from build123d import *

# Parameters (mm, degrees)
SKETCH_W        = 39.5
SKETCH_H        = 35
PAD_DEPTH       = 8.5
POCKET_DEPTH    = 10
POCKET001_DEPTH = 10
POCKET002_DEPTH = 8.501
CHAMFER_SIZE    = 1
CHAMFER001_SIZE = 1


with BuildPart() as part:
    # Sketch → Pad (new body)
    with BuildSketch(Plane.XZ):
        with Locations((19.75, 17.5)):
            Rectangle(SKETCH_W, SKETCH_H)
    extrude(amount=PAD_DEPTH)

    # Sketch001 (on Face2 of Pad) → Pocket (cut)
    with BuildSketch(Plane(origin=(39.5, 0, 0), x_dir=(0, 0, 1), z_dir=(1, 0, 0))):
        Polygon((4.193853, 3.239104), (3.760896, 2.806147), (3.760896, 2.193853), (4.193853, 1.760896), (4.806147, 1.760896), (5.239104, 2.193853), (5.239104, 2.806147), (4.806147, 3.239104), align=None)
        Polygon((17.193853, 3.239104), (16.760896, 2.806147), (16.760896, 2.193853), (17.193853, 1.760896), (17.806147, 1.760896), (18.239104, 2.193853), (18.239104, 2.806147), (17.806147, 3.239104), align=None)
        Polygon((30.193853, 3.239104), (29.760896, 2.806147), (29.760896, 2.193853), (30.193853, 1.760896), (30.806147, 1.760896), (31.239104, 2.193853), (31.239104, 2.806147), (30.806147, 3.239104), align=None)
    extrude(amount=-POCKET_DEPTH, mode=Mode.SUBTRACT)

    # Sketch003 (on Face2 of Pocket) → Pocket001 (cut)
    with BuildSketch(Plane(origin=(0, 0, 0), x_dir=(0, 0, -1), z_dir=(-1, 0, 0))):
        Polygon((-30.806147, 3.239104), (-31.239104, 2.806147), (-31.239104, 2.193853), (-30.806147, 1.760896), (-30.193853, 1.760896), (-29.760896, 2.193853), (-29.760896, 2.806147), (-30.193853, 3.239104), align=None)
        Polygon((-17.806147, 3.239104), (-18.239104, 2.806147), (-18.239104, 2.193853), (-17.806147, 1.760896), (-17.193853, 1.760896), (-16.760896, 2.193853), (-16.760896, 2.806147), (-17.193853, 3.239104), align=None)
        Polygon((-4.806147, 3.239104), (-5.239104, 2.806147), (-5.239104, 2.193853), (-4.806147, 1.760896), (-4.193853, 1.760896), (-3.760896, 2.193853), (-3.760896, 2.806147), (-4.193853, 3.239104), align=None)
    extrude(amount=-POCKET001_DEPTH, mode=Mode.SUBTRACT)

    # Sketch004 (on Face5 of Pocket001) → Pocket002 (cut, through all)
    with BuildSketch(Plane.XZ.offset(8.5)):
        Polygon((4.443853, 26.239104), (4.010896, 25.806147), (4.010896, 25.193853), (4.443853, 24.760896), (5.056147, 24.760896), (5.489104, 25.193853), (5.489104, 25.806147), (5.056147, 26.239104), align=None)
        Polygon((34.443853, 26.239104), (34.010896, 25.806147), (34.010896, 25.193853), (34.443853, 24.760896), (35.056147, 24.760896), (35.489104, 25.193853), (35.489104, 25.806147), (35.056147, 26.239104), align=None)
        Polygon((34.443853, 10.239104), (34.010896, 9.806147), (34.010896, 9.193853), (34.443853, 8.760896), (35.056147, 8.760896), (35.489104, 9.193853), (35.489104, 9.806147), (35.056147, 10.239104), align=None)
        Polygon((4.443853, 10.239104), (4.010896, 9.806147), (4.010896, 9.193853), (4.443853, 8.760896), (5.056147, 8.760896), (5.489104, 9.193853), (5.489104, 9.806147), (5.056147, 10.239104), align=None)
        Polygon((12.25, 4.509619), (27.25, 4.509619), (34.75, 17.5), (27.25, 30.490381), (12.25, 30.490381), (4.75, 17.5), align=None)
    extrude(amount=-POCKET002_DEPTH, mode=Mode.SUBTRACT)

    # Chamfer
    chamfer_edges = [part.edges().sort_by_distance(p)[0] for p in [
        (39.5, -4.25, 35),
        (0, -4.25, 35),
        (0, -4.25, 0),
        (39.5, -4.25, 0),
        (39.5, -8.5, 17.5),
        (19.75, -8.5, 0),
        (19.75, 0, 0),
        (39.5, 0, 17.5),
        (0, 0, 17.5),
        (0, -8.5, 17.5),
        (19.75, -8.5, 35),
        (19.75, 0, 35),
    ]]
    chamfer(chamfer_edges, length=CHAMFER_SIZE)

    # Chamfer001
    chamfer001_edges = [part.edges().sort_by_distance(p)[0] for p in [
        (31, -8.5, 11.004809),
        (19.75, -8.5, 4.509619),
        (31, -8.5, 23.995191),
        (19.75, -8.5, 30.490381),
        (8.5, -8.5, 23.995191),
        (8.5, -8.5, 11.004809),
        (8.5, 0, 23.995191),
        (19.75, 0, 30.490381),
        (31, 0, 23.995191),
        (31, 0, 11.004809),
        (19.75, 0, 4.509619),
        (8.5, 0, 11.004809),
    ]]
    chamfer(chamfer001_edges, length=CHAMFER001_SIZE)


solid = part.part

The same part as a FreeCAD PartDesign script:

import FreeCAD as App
import Part
import Sketcher
from FreeCAD import Vector
Q = App.Units.Quantity


def edges_at(feature, points):
    """Names of the edges that pass closest to the given points."""
    edges = feature.Shape.Edges
    near = lambda p: min(range(len(edges)), key=lambda i: edges[i].distToShape(Part.Vertex(*p))[0])
    return sorted({f"Edge{near(p) + 1}" for p in points})

doc = App.newDocument("Part")
body = doc.addObject("PartDesign::Body", "Body")

# Sketch on XZ plane
sketch1 = doc.addObject("Sketcher::SketchObject", "Sketch")
body.addObject(sketch1)
sketch1.AttachmentSupport = (doc.XZ_Plane, [""])
sketch1.MapMode = "FlatFace"
sketch1.addGeometry([
    Part.LineSegment(Vector(0, 35, 0), Vector(0, 0, 0)),
    Part.LineSegment(Vector(0, 0, 0), Vector(40, 0, 0)),
    Part.LineSegment(Vector(40, 0, 0), Vector(40, 35, 0)),
    Part.LineSegment(Vector(40, 35, 0), Vector(0, 35, 0)),
], False)
sketch1.addConstraint([
    Sketcher.Constraint("Coincident", 0, 2, 1, 1),
    Sketcher.Constraint("Coincident", 1, 2, 2, 1),
    Sketcher.Constraint("Coincident", 2, 2, 3, 1),
    Sketcher.Constraint("Coincident", 3, 2, 0, 1),
    Sketcher.Constraint("Vertical", 0),
    Sketcher.Constraint("Horizontal", 1),
    Sketcher.Constraint("Vertical", 2),
    Sketcher.Constraint("Horizontal", 3),
    Sketcher.Constraint("Coincident", 0, 2, -1, 1),
    Sketcher.Constraint("DistanceY", 0, 2, 0, 1, 35.0),
    Sketcher.Constraint("DistanceX", 1, 1, 1, 2, 39.5),
])
pad1 = doc.addObject("PartDesign::Pad", "Pad")
body.addObject(pad1)
pad1.Profile = sketch1
pad1.Length = 8.5

# Sketch on YZ plane
sketch2 = doc.addObject("Sketcher::SketchObject", "Sketch001")
body.addObject(sketch2)
sketch2.AttachmentSupport = (doc.YZ_Plane, [""])
sketch2.MapMode = "FlatFace"
sketch2.AttachmentOffset = App.Placement(Vector(0, 0, 39.5), App.Rotation())
sketch2.addGeometry([
    Part.LineSegment(Vector(-3.2, 4.2, 0), Vector(-2.8, 3.8, 0)),  # 0
    Part.LineSegment(Vector(-2.8, 3.8, 0), Vector(-2.2, 3.8, 0)),  # 1
    Part.LineSegment(Vector(-2.2, 3.8, 0), Vector(-1.8, 4.2, 0)),  # 2
    Part.LineSegment(Vector(-1.8, 4.2, 0), Vector(-1.8, 4.8, 0)),  # 3
    Part.LineSegment(Vector(-1.8, 4.8, 0), Vector(-2.2, 5.2, 0)),  # 4
    Part.LineSegment(Vector(-2.2, 5.2, 0), Vector(-2.8, 5.2, 0)),  # 5
    Part.LineSegment(Vector(-2.8, 5.2, 0), Vector(-3.2, 4.8, 0)),  # 6
    Part.LineSegment(Vector(-3.2, 4.8, 0), Vector(-3.2, 4.2, 0)),  # 7
    Part.LineSegment(Vector(-3.2, 17.2, 0), Vector(-2.8, 16.8, 0)),  # 8
    Part.LineSegment(Vector(-2.8, 16.8, 0), Vector(-2.2, 16.8, 0)),  # 9
    Part.LineSegment(Vector(-2.2, 16.8, 0), Vector(-1.8, 17.2, 0)),  # 10
    Part.LineSegment(Vector(-1.8, 17.2, 0), Vector(-1.8, 17.8, 0)),  # 11
    Part.LineSegment(Vector(-1.8, 17.8, 0), Vector(-2.2, 18.2, 0)),  # 12
    Part.LineSegment(Vector(-2.2, 18.2, 0), Vector(-2.8, 18.2, 0)),  # 13
    Part.LineSegment(Vector(-2.8, 18.2, 0), Vector(-3.2, 17.8, 0)),  # 14
    Part.LineSegment(Vector(-3.2, 17.8, 0), Vector(-3.2, 17.2, 0)),  # 15
    Part.LineSegment(Vector(-3.2, 30.2, 0), Vector(-2.8, 29.8, 0)),  # 16
    Part.LineSegment(Vector(-2.8, 29.8, 0), Vector(-2.2, 29.8, 0)),  # 17
    Part.LineSegment(Vector(-2.2, 29.8, 0), Vector(-1.8, 30.2, 0)),  # 18
    Part.LineSegment(Vector(-1.8, 30.2, 0), Vector(-1.8, 30.8, 0)),  # 19
    Part.LineSegment(Vector(-1.8, 30.8, 0), Vector(-2.2, 31.2, 0)),  # 20
    Part.LineSegment(Vector(-2.2, 31.2, 0), Vector(-2.8, 31.2, 0)),  # 21
    Part.LineSegment(Vector(-2.8, 31.2, 0), Vector(-3.2, 30.8, 0)),  # 22
    Part.LineSegment(Vector(-3.2, 30.8, 0), Vector(-3.2, 30.2, 0)),  # 23
], False)
sketch2.addConstraint([
    Sketcher.Constraint("Coincident", 0, 2, 1, 1),
    Sketcher.Constraint("Coincident", 1, 2, 2, 1),
    Sketcher.Constraint("Coincident", 2, 2, 3, 1),
    Sketcher.Constraint("Coincident", 3, 2, 4, 1),
    Sketcher.Constraint("Coincident", 4, 2, 5, 1),
    Sketcher.Constraint("Coincident", 5, 2, 6, 1),
    Sketcher.Constraint("Coincident", 6, 2, 7, 1),
    Sketcher.Constraint("Coincident", 7, 2, 0, 1),
    Sketcher.Constraint("Coincident", 8, 2, 9, 1),
    Sketcher.Constraint("Coincident", 9, 2, 10, 1),
    Sketcher.Constraint("Coincident", 10, 2, 11, 1),
    Sketcher.Constraint("Coincident", 11, 2, 12, 1),
    Sketcher.Constraint("Coincident", 12, 2, 13, 1),
    Sketcher.Constraint("Coincident", 13, 2, 14, 1),
    Sketcher.Constraint("Coincident", 14, 2, 15, 1),
    Sketcher.Constraint("Coincident", 15, 2, 8, 1),
    Sketcher.Constraint("Coincident", 16, 2, 17, 1),
    Sketcher.Constraint("Coincident", 17, 2, 18, 1),
    Sketcher.Constraint("Coincident", 18, 2, 19, 1),
    Sketcher.Constraint("Coincident", 19, 2, 20, 1),
    Sketcher.Constraint("Coincident", 20, 2, 21, 1),
    Sketcher.Constraint("Coincident", 21, 2, 22, 1),
    Sketcher.Constraint("Coincident", 22, 2, 23, 1),
    Sketcher.Constraint("Coincident", 23, 2, 16, 1),
    Sketcher.Constraint("Horizontal", 1),
    Sketcher.Constraint("Vertical", 3),
    Sketcher.Constraint("Horizontal", 5),
    Sketcher.Constraint("Vertical", 7),
    Sketcher.Constraint("Horizontal", 9),
    Sketcher.Constraint("Vertical", 11),
    Sketcher.Constraint("Horizontal", 13),
    Sketcher.Constraint("Vertical", 15),
    Sketcher.Constraint("Horizontal", 17),
    Sketcher.Constraint("Vertical", 19),
    Sketcher.Constraint("Horizontal", 21),
    Sketcher.Constraint("Vertical", 23),
    Sketcher.Constraint("Perpendicular", 0, 2),
    Sketcher.Constraint("Perpendicular", 2, 4),
    Sketcher.Constraint("Perpendicular", 4, 6),
    Sketcher.Constraint("Perpendicular", 6, 8),
    Sketcher.Constraint("Perpendicular", 8, 10),
    Sketcher.Constraint("Perpendicular", 10, 12),
    Sketcher.Constraint("Perpendicular", 12, 14),
    Sketcher.Constraint("Perpendicular", 14, 16),
    Sketcher.Constraint("Perpendicular", 16, 18),
    Sketcher.Constraint("Perpendicular", 18, 20),
    Sketcher.Constraint("Perpendicular", 20, 22),
    Sketcher.Constraint("Horizontal", 3, 2, 6, 2),
    Sketcher.Constraint("Horizontal", 2, 2, 7, 2),
    Sketcher.Constraint("Horizontal", 11, 2, 14, 2),
    Sketcher.Constraint("Horizontal", 10, 2, 15, 2),
    Sketcher.Constraint("Horizontal", 19, 2, 22, 2),
    Sketcher.Constraint("Horizontal", 18, 2, 23, 2),
    Sketcher.Constraint("Vertical", 1, 2, 4, 2),
    Sketcher.Constraint("Vertical", 0, 2, 5, 2),
    Sketcher.Constraint("Vertical", 5, 2, 8, 2),
    Sketcher.Constraint("Vertical", 4, 2, 9, 2),
    Sketcher.Constraint("Vertical", 3, 2, 10, 2),
    Sketcher.Constraint("Vertical", 9, 2, 12, 2),
    Sketcher.Constraint("Vertical", 13, 2, 16, 2),
    Sketcher.Constraint("Vertical", 12, 2, 17, 2),
    Sketcher.Constraint("Vertical", 11, 2, 18, 2),
    Sketcher.Constraint("Vertical", 17, 2, 20, 2),
    Sketcher.Constraint("Equal", 21, 3),
    Sketcher.Constraint("Equal", 7, 11),
    Sketcher.Constraint("Equal", 15, 19),
    Sketcher.Constraint("DistanceY", 4, 2, 12, 2, 13.0),
    Sketcher.Constraint("DistanceY", 12, 2, 20, 2, 13.0),
    Sketcher.Constraint("DistanceX", 1, 1, 1, 2, 0.612294),
    Sketcher.Constraint("DistanceX", 0, 2, 2, 2, 1.045251),
    Sketcher.Constraint("DistanceX", 0, 2, -1, 1, 2.806147),
    Sketcher.Constraint("DistanceY", -1, 1, 0, 2, 3.760896),
])
pocket1 = doc.addObject("PartDesign::Pocket", "Pocket")
body.addObject(pocket1)
pocket1.Profile = sketch2
pocket1.Length = 10

# Sketch on YZ plane
sketch3 = doc.addObject("Sketcher::SketchObject", "Sketch002")
body.addObject(sketch3)
sketch3.AttachmentSupport = (doc.YZ_Plane, [""])
sketch3.MapMode = "FlatFace"
sketch3.addGeometry([
    Part.LineSegment(Vector(-3.2, 30.8, 0), Vector(-2.8, 31.2, 0)),  # 0
    Part.LineSegment(Vector(-2.8, 31.2, 0), Vector(-2.2, 31.2, 0)),  # 1
    Part.LineSegment(Vector(-2.2, 31.2, 0), Vector(-1.8, 30.8, 0)),  # 2
    Part.LineSegment(Vector(-1.8, 30.8, 0), Vector(-1.8, 30.2, 0)),  # 3
    Part.LineSegment(Vector(-1.8, 30.2, 0), Vector(-2.2, 29.8, 0)),  # 4
    Part.LineSegment(Vector(-2.2, 29.8, 0), Vector(-2.8, 29.8, 0)),  # 5
    Part.LineSegment(Vector(-2.8, 29.8, 0), Vector(-3.2, 30.2, 0)),  # 6
    Part.LineSegment(Vector(-3.2, 30.2, 0), Vector(-3.2, 30.8, 0)),  # 7
    Part.LineSegment(Vector(-3.2, 17.8, 0), Vector(-2.8, 18.2, 0)),  # 8
    Part.LineSegment(Vector(-2.8, 18.2, 0), Vector(-2.2, 18.2, 0)),  # 9
    Part.LineSegment(Vector(-2.2, 18.2, 0), Vector(-1.8, 17.8, 0)),  # 10
    Part.LineSegment(Vector(-1.8, 17.8, 0), Vector(-1.8, 17.2, 0)),  # 11
    Part.LineSegment(Vector(-1.8, 17.2, 0), Vector(-2.2, 16.8, 0)),  # 12
    Part.LineSegment(Vector(-2.2, 16.8, 0), Vector(-2.8, 16.8, 0)),  # 13
    Part.LineSegment(Vector(-2.8, 16.8, 0), Vector(-3.2, 17.2, 0)),  # 14
    Part.LineSegment(Vector(-3.2, 17.2, 0), Vector(-3.2, 17.8, 0)),  # 15
    Part.LineSegment(Vector(-3.2, 4.8, 0), Vector(-2.8, 5.2, 0)),  # 16
    Part.LineSegment(Vector(-2.8, 5.2, 0), Vector(-2.2, 5.2, 0)),  # 17
    Part.LineSegment(Vector(-2.2, 5.2, 0), Vector(-1.8, 4.8, 0)),  # 18
    Part.LineSegment(Vector(-1.8, 4.8, 0), Vector(-1.8, 4.2, 0)),  # 19
    Part.LineSegment(Vector(-1.8, 4.2, 0), Vector(-2.2, 3.8, 0)),  # 20
    Part.LineSegment(Vector(-2.2, 3.8, 0), Vector(-2.8, 3.8, 0)),  # 21
    Part.LineSegment(Vector(-2.8, 3.8, 0), Vector(-3.2, 4.2, 0)),  # 22
    Part.LineSegment(Vector(-3.2, 4.2, 0), Vector(-3.2, 4.8, 0)),  # 23
], False)
sketch3.addConstraint([
    Sketcher.Constraint("Coincident", 0, 2, 1, 1),
    Sketcher.Constraint("Coincident", 1, 2, 2, 1),
    Sketcher.Constraint("Coincident", 2, 2, 3, 1),
    Sketcher.Constraint("Coincident", 3, 2, 4, 1),
    Sketcher.Constraint("Coincident", 4, 2, 5, 1),
    Sketcher.Constraint("Coincident", 5, 2, 6, 1),
    Sketcher.Constraint("Coincident", 6, 2, 7, 1),
    Sketcher.Constraint("Coincident", 7, 2, 0, 1),
    Sketcher.Constraint("Coincident", 8, 2, 9, 1),
    Sketcher.Constraint("Coincident", 9, 2, 10, 1),
    Sketcher.Constraint("Coincident", 10, 2, 11, 1),
    Sketcher.Constraint("Coincident", 11, 2, 12, 1),
    Sketcher.Constraint("Coincident", 12, 2, 13, 1),
    Sketcher.Constraint("Coincident", 13, 2, 14, 1),
    Sketcher.Constraint("Coincident", 14, 2, 15, 1),
    Sketcher.Constraint("Coincident", 15, 2, 8, 1),
    Sketcher.Constraint("Coincident", 16, 2, 17, 1),
    Sketcher.Constraint("Coincident", 17, 2, 18, 1),
    Sketcher.Constraint("Coincident", 18, 2, 19, 1),
    Sketcher.Constraint("Coincident", 19, 2, 20, 1),
    Sketcher.Constraint("Coincident", 20, 2, 21, 1),
    Sketcher.Constraint("Coincident", 21, 2, 22, 1),
    Sketcher.Constraint("Coincident", 22, 2, 23, 1),
    Sketcher.Constraint("Coincident", 23, 2, 16, 1),
    Sketcher.Constraint("Horizontal", 1),
    Sketcher.Constraint("Vertical", 3),
    Sketcher.Constraint("Horizontal", 5),
    Sketcher.Constraint("Vertical", 7),
    Sketcher.Constraint("Horizontal", 9),
    Sketcher.Constraint("Vertical", 11),
    Sketcher.Constraint("Horizontal", 13),
    Sketcher.Constraint("Vertical", 15),
    Sketcher.Constraint("Horizontal", 17),
    Sketcher.Constraint("Vertical", 19),
    Sketcher.Constraint("Horizontal", 21),
    Sketcher.Constraint("Vertical", 23),
    Sketcher.Constraint("Perpendicular", 0, 2),
    Sketcher.Constraint("Perpendicular", 2, 4),
    Sketcher.Constraint("Perpendicular", 4, 6),
    Sketcher.Constraint("Perpendicular", 6, 8),
    Sketcher.Constraint("Perpendicular", 8, 10),
    Sketcher.Constraint("Perpendicular", 10, 12),
    Sketcher.Constraint("Perpendicular", 12, 14),
    Sketcher.Constraint("Perpendicular", 14, 16),
    Sketcher.Constraint("Perpendicular", 16, 18),
    Sketcher.Constraint("Perpendicular", 18, 20),
    Sketcher.Constraint("Perpendicular", 20, 22),
    Sketcher.Constraint("Horizontal", 3, 2, 6, 2),
    Sketcher.Constraint("Horizontal", 2, 2, 7, 2),
    Sketcher.Constraint("Horizontal", 11, 2, 14, 2),
    Sketcher.Constraint("Horizontal", 10, 2, 15, 2),
    Sketcher.Constraint("Horizontal", 19, 2, 22, 2),
    Sketcher.Constraint("Horizontal", 18, 2, 23, 2),
    Sketcher.Constraint("Vertical", 1, 2, 4, 2),
    Sketcher.Constraint("Vertical", 0, 2, 5, 2),
    Sketcher.Constraint("Vertical", 5, 2, 8, 2),
    Sketcher.Constraint("Vertical", 4, 2, 9, 2),
    Sketcher.Constraint("Vertical", 3, 2, 10, 2),
    Sketcher.Constraint("Vertical", 9, 2, 12, 2),
    Sketcher.Constraint("Vertical", 13, 2, 16, 2),
    Sketcher.Constraint("Vertical", 12, 2, 17, 2),
    Sketcher.Constraint("Vertical", 11, 2, 18, 2),
    Sketcher.Constraint("Vertical", 17, 2, 20, 2),
    Sketcher.Constraint("Equal", 21, 3),
    Sketcher.Constraint("Equal", 7, 11),
    Sketcher.Constraint("Equal", 15, 19),
    Sketcher.Constraint("DistanceY", 12, 2, 4, 2, 13.0),
    Sketcher.Constraint("DistanceY", 20, 2, 12, 2, 13.0),
    Sketcher.Constraint("DistanceX", 1, 1, 1, 2, 0.612294),
    Sketcher.Constraint("DistanceX", 0, 2, 2, 2, 1.045251),
    Sketcher.Constraint("DistanceX", 0, 2, -1, 1, 2.806147),
    Sketcher.Constraint("DistanceY", -1, 1, 0, 2, 31.239104),
])
pocket2 = doc.addObject("PartDesign::Pocket", "Pocket001")
body.addObject(pocket2)
pocket2.Profile = sketch3
pocket2.Length = 10
pocket2.Reversed = True

# Sketch on XZ plane
sketch4 = doc.addObject("Sketcher::SketchObject", "Sketch003")
body.addObject(sketch4)
sketch4.AttachmentSupport = (doc.XZ_Plane, [""])
sketch4.MapMode = "FlatFace"
sketch4.AttachmentOffset = App.Placement(Vector(0, 0, 8.5), App.Rotation())
sketch4.addGeometry([
    Part.LineSegment(Vector(4.4, 26.2, 0), Vector(4, 25.8, 0)),  # 0
    Part.LineSegment(Vector(4, 25.8, 0), Vector(4, 25.2, 0)),  # 1
    Part.LineSegment(Vector(4, 25.2, 0), Vector(4.4, 24.8, 0)),  # 2
    Part.LineSegment(Vector(4.4, 24.8, 0), Vector(5.1, 24.8, 0)),  # 3
    Part.LineSegment(Vector(5.1, 24.8, 0), Vector(5.5, 25.2, 0)),  # 4
    Part.LineSegment(Vector(5.5, 25.2, 0), Vector(5.5, 25.8, 0)),  # 5
    Part.LineSegment(Vector(5.5, 25.8, 0), Vector(5.1, 26.2, 0)),  # 6
    Part.LineSegment(Vector(5.1, 26.2, 0), Vector(4.4, 26.2, 0)),  # 7
    Part.LineSegment(Vector(34.4, 26.2, 0), Vector(34, 25.8, 0)),  # 8
    Part.LineSegment(Vector(34, 25.8, 0), Vector(34, 25.2, 0)),  # 9
    Part.LineSegment(Vector(34, 25.2, 0), Vector(34.4, 24.8, 0)),  # 10
    Part.LineSegment(Vector(34.4, 24.8, 0), Vector(35.1, 24.8, 0)),  # 11
    Part.LineSegment(Vector(35.1, 24.8, 0), Vector(35.5, 25.2, 0)),  # 12
    Part.LineSegment(Vector(35.5, 25.2, 0), Vector(35.5, 25.8, 0)),  # 13
    Part.LineSegment(Vector(35.5, 25.8, 0), Vector(35.1, 26.2, 0)),  # 14
    Part.LineSegment(Vector(35.1, 26.2, 0), Vector(34.4, 26.2, 0)),  # 15
    Part.LineSegment(Vector(34.4, 10.2, 0), Vector(34, 9.8, 0)),  # 16
    Part.LineSegment(Vector(34, 9.8, 0), Vector(34, 9.2, 0)),  # 17
    Part.LineSegment(Vector(34, 9.2, 0), Vector(34.4, 8.8, 0)),  # 18
    Part.LineSegment(Vector(34.4, 8.8, 0), Vector(35.1, 8.8, 0)),  # 19
    Part.LineSegment(Vector(35.1, 8.8, 0), Vector(35.5, 9.2, 0)),  # 20
    Part.LineSegment(Vector(35.5, 9.2, 0), Vector(35.5, 9.8, 0)),  # 21
    Part.LineSegment(Vector(35.5, 9.8, 0), Vector(35.1, 10.2, 0)),  # 22
    Part.LineSegment(Vector(35.1, 10.2, 0), Vector(34.4, 10.2, 0)),  # 23
    Part.LineSegment(Vector(4.4, 10.2, 0), Vector(4, 9.8, 0)),  # 24
    Part.LineSegment(Vector(4, 9.8, 0), Vector(4, 9.2, 0)),  # 25
    Part.LineSegment(Vector(4, 9.2, 0), Vector(4.4, 8.8, 0)),  # 26
    Part.LineSegment(Vector(4.4, 8.8, 0), Vector(5.1, 8.8, 0)),  # 27
    Part.LineSegment(Vector(5.1, 8.8, 0), Vector(5.5, 9.2, 0)),  # 28
    Part.LineSegment(Vector(5.5, 9.2, 0), Vector(5.5, 9.8, 0)),  # 29
    Part.LineSegment(Vector(5.5, 9.8, 0), Vector(5.1, 10.2, 0)),  # 30
    Part.LineSegment(Vector(5.1, 10.2, 0), Vector(4.4, 10.2, 0)),  # 31
    Part.LineSegment(Vector(12.2, 4.5, 0), Vector(27.2, 4.5, 0)),  # 32
    Part.LineSegment(Vector(27.2, 4.5, 0), Vector(34.8, 17.5, 0)),  # 33
    Part.LineSegment(Vector(34.8, 17.5, 0), Vector(27.2, 30.5, 0)),  # 34
    Part.LineSegment(Vector(27.2, 30.5, 0), Vector(12.2, 30.5, 0)),  # 35
    Part.LineSegment(Vector(12.2, 30.5, 0), Vector(4.8, 17.5, 0)),  # 36
    Part.LineSegment(Vector(4.8, 17.5, 0), Vector(12.2, 4.5, 0)),  # 37
], False)
sketch4.addConstraint([
    Sketcher.Constraint("Coincident", 0, 2, 1, 1),
    Sketcher.Constraint("Coincident", 1, 2, 2, 1),
    Sketcher.Constraint("Coincident", 2, 2, 3, 1),
    Sketcher.Constraint("Coincident", 3, 2, 4, 1),
    Sketcher.Constraint("Coincident", 4, 2, 5, 1),
    Sketcher.Constraint("Coincident", 5, 2, 6, 1),
    Sketcher.Constraint("Coincident", 6, 2, 7, 1),
    Sketcher.Constraint("Coincident", 7, 2, 0, 1),
    Sketcher.Constraint("Coincident", 8, 2, 9, 1),
    Sketcher.Constraint("Coincident", 9, 2, 10, 1),
    Sketcher.Constraint("Coincident", 10, 2, 11, 1),
    Sketcher.Constraint("Coincident", 11, 2, 12, 1),
    Sketcher.Constraint("Coincident", 12, 2, 13, 1),
    Sketcher.Constraint("Coincident", 13, 2, 14, 1),
    Sketcher.Constraint("Coincident", 14, 2, 15, 1),
    Sketcher.Constraint("Coincident", 15, 2, 8, 1),
    Sketcher.Constraint("Coincident", 16, 2, 17, 1),
    Sketcher.Constraint("Coincident", 17, 2, 18, 1),
    Sketcher.Constraint("Coincident", 18, 2, 19, 1),
    Sketcher.Constraint("Coincident", 19, 2, 20, 1),
    Sketcher.Constraint("Coincident", 20, 2, 21, 1),
    Sketcher.Constraint("Coincident", 21, 2, 22, 1),
    Sketcher.Constraint("Coincident", 22, 2, 23, 1),
    Sketcher.Constraint("Coincident", 23, 2, 16, 1),
    Sketcher.Constraint("Coincident", 24, 2, 25, 1),
    Sketcher.Constraint("Coincident", 25, 2, 26, 1),
    Sketcher.Constraint("Coincident", 26, 2, 27, 1),
    Sketcher.Constraint("Coincident", 27, 2, 28, 1),
    Sketcher.Constraint("Coincident", 28, 2, 29, 1),
    Sketcher.Constraint("Coincident", 29, 2, 30, 1),
    Sketcher.Constraint("Coincident", 30, 2, 31, 1),
    Sketcher.Constraint("Coincident", 31, 2, 24, 1),
    Sketcher.Constraint("Coincident", 32, 2, 33, 1),
    Sketcher.Constraint("Coincident", 33, 2, 34, 1),
    Sketcher.Constraint("Coincident", 34, 2, 35, 1),
    Sketcher.Constraint("Coincident", 35, 2, 36, 1),
    Sketcher.Constraint("Coincident", 36, 2, 37, 1),
    Sketcher.Constraint("Coincident", 37, 2, 32, 1),
    Sketcher.Constraint("Vertical", 1),
    Sketcher.Constraint("Horizontal", 3),
    Sketcher.Constraint("Vertical", 5),
    Sketcher.Constraint("Horizontal", 7),
    Sketcher.Constraint("Vertical", 9),
    Sketcher.Constraint("Horizontal", 11),
    Sketcher.Constraint("Vertical", 13),
    Sketcher.Constraint("Horizontal", 15),
    Sketcher.Constraint("Vertical", 17),
    Sketcher.Constraint("Horizontal", 19),
    Sketcher.Constraint("Vertical", 21),
    Sketcher.Constraint("Horizontal", 23),
    Sketcher.Constraint("Vertical", 25),
    Sketcher.Constraint("Horizontal", 27),
    Sketcher.Constraint("Vertical", 29),
    Sketcher.Constraint("Horizontal", 31),
    Sketcher.Constraint("Horizontal", 32),
    Sketcher.Constraint("Horizontal", 35),
    Sketcher.Constraint("Perpendicular", 0, 2),
    Sketcher.Constraint("Perpendicular", 2, 4),
    Sketcher.Constraint("Perpendicular", 4, 6),
    Sketcher.Constraint("Perpendicular", 6, 8),
    Sketcher.Constraint("Perpendicular", 8, 10),
    Sketcher.Constraint("Perpendicular", 10, 12),
    Sketcher.Constraint("Perpendicular", 12, 14),
    Sketcher.Constraint("Perpendicular", 14, 16),
    Sketcher.Constraint("Perpendicular", 16, 18),
    Sketcher.Constraint("Perpendicular", 18, 20),
    Sketcher.Constraint("Perpendicular", 20, 22),
    Sketcher.Constraint("Perpendicular", 22, 24),
    Sketcher.Constraint("Perpendicular", 24, 26),
    Sketcher.Constraint("Perpendicular", 26, 28),
    Sketcher.Constraint("Perpendicular", 28, 30),
    Sketcher.Constraint("Parallel", 33, 36),
    Sketcher.Constraint("Parallel", 34, 37),
    Sketcher.Constraint("Horizontal", 1, 2, 4, 2),
    Sketcher.Constraint("Horizontal", 0, 2, 5, 2),
    Sketcher.Constraint("Horizontal", 5, 2, 8, 2),
    Sketcher.Constraint("Horizontal", 4, 2, 9, 2),
    Sketcher.Constraint("Horizontal", 3, 2, 10, 2),
    Sketcher.Constraint("Horizontal", 9, 2, 12, 2),
    Sketcher.Constraint("Horizontal", 8, 2, 13, 2),
    Sketcher.Constraint("Horizontal", 7, 2, 14, 2),
    Sketcher.Constraint("Horizontal", 17, 2, 20, 2),
    Sketcher.Constraint("Horizontal", 16, 2, 21, 2),
    Sketcher.Constraint("Horizontal", 21, 2, 24, 2),
    Sketcher.Constraint("Horizontal", 20, 2, 25, 2),
    Sketcher.Constraint("Horizontal", 19, 2, 26, 2),
    Sketcher.Constraint("Horizontal", 25, 2, 28, 2),
    Sketcher.Constraint("Horizontal", 24, 2, 29, 2),
    Sketcher.Constraint("Horizontal", 23, 2, 30, 2),
    Sketcher.Constraint("Horizontal", 33, 2, 36, 2),
    Sketcher.Constraint("Vertical", 3, 2, 6, 2),
    Sketcher.Constraint("Vertical", 2, 2, 7, 2),
    Sketcher.Constraint("Vertical", 9, 2, 16, 2),
    Sketcher.Constraint("Vertical", 15, 2, 18, 2),
    Sketcher.Constraint("Vertical", 14, 2, 19, 2),
    Sketcher.Constraint("Vertical", 19, 2, 22, 2),
    Sketcher.Constraint("Vertical", 1, 2, 24, 2),
    Sketcher.Constraint("Vertical", 6, 2, 27, 2),
    Sketcher.Constraint("Vertical", 32, 2, 34, 2),
    Sketcher.Constraint("Vertical", 35, 2, 37, 2),
    Sketcher.Constraint("Equal", 7, 11),
    Sketcher.Constraint("Equal", 31, 1),
    Sketcher.Constraint("Equal", 13, 17),
    Sketcher.Constraint("DistanceX", 32, 1, 32, 2, 15.0),
    Sketcher.Constraint("Angle", 33, Q("60 deg")),
    Sketcher.Constraint("Distance", 33, 15.0),
    Sketcher.Constraint("DistanceX", 4, 2, 12, 2, 30.0),
    Sketcher.Constraint("DistanceY", 16, 2, 8, 2, 16.0),
    Sketcher.Constraint("DistanceY", -1, 1, 33, 2, 17.5),
    Sketcher.Constraint("DistanceX", -1, 1, 32, 2, 27.25),
    Sketcher.Constraint("DistanceX", 3, 1, 3, 2, 0.612294),
    Sketcher.Constraint("DistanceY", 2, 2, 0, 2, 1.045251),
    Sketcher.Constraint("DistanceX", -1, 1, 0, 2, 4.010896),
    Sketcher.Constraint("DistanceY", -1, 1, 0, 2, 25.806147),
])
pocket3 = doc.addObject("PartDesign::Pocket", "Pocket002")
body.addObject(pocket3)
pocket3.Profile = sketch4
pocket3.Type = "ThroughAll"
doc.recompute()

chamfer = doc.addObject("PartDesign::Chamfer", "Chamfer")
body.addObject(chamfer)
chamfer.Base = (pocket3, edges_at(pocket3, [
    (39.5, -4.25, 35),
    (0, -4.25, 35),
    (0, -4.25, 0),
    (39.5, -4.25, 0),
    (39.5, -8.5, 17.5),
    (19.75, -8.5, 0),
    (19.75, 0, 0),
    (39.5, 0, 17.5),
    (0, 0, 17.5),
    (0, -8.5, 17.5),
    (19.75, -8.5, 35),
    (19.75, 0, 35),
]))
chamfer.Size = 1
doc.recompute()

chamfer2 = doc.addObject("PartDesign::Chamfer", "Chamfer001")
body.addObject(chamfer2)
chamfer2.Base = (chamfer, edges_at(chamfer, [
    (31, -8.5, 11.005),
    (19.75, -8.5, 4.51),
    (31, -8.5, 23.995),
    (19.75, -8.5, 30.49),
    (8.5, -8.5, 23.995),
    (8.5, -8.5, 11.005),
    (8.5, 0, 23.995),
    (19.75, 0, 30.49),
    (31, 0, 23.995),
    (31, 0, 11.005),
    (19.75, 0, 4.51),
    (8.5, 0, 11.005),
]))
chamfer2.Size = 1

doc.recompute()
